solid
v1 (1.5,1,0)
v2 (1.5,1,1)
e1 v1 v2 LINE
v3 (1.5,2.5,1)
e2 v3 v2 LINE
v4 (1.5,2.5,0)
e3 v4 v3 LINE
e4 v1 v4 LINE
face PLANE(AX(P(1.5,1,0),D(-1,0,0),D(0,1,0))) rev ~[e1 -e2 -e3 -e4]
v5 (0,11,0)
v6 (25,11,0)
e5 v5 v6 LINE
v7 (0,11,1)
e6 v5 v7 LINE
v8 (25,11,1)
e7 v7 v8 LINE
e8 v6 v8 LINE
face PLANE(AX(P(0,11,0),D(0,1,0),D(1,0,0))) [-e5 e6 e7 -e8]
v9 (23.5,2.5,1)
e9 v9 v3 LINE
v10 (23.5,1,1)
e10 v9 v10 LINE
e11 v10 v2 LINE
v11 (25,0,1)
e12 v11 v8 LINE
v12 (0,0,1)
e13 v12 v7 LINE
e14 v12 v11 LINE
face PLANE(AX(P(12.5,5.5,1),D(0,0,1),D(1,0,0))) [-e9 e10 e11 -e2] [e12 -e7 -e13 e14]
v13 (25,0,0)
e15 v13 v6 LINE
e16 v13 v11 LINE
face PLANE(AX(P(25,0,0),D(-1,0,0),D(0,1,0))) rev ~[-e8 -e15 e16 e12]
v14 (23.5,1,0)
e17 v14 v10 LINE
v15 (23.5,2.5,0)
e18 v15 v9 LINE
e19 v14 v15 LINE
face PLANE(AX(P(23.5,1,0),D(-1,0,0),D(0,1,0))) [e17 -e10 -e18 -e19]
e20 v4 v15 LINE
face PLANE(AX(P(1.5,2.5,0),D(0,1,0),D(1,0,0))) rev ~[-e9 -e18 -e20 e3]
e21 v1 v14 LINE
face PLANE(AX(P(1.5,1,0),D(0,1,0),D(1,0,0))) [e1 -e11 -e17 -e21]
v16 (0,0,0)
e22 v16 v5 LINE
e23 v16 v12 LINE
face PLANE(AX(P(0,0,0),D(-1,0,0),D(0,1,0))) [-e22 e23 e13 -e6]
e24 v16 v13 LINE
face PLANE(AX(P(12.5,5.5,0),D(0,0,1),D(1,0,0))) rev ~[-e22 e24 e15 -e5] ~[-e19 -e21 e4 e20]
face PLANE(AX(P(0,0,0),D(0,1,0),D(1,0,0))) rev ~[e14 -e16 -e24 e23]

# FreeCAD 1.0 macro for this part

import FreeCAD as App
import Part
import Sketcher


def add_polygon(sketch, points):
    """Adds a closed chain of lines whose ends are joined by coincident constraints."""
    first, n = sketch.GeometryCount, len(points)
    for a, b in zip(points, points[1:] + points[:1]):
        sketch.addGeometry(Part.LineSegment(App.Vector(*a, 0), App.Vector(*b, 0)), False)
    for i in range(n):
        sketch.addConstraint(Sketcher.Constraint("Coincident", first + i, 2, first + (i + 1) % n, 1))

doc = App.newDocument("Part")
params = doc.addObject("Spreadsheet::Sheet", "Params")
for row, (alias, value) in enumerate([
    ("sketch1_width", "22 mm"),
    ("sketch1_height", "1.5 mm"),
    ("pad1_length", "2 mm"),
    ("sketch2_width", "25 mm"),
    ("sketch2_height", "11 mm"),
    ("pad2_length", "1 mm"),
], start=1):
    params.set(f"A{row}", alias)
    params.set(f"B{row}", "=" + value)
    params.setAlias(f"B{row}", alias)

body = doc.addObject("PartDesign::Body", "Body")

# Sketch on XY plane
sketch1 = body.newObject("Sketcher::SketchObject", "Sketch")
sketch1.AttachmentSupport = (doc.getObject("XY_Plane"), [""])
sketch1.MapMode = "FlatFace"
add_polygon(sketch1, [(1.5, 2.5), (1.5, 1), (23.5, 1), (23.5, 2.5)])  # lines 0-3
sketch1.addConstraint([
    Sketcher.Constraint("Vertical", 0),
    Sketcher.Constraint("Horizontal", 1),
    Sketcher.Constraint("Vertical", 2),
    Sketcher.Constraint("Horizontal", 3),
    Sketcher.Constraint("DistanceX", 1, 1, 1, 2, 22.0),
    Sketcher.Constraint("DistanceY", 0, 2, 0, 1, 1.5),
    Sketcher.Constraint("DistanceY", -1, 1, 0, 2, 1.0),
    Sketcher.Constraint("DistanceX", -1, 1, 0, 2, 1.5),
])
sketch1.setExpression("Constraints[8]", "Params.sketch1_width")
sketch1.setExpression("Constraints[9]", "Params.sketch1_height")
pad1 = body.newObject("PartDesign::Pad", "Pad")
pad1.Profile = sketch1
pad1.setExpression("Length", "Params.pad1_length")
body2 = doc.addObject("PartDesign::Body", "Body001")

# Sketch on XY plane
sketch2 = body2.newObject("Sketcher::SketchObject", "Sketch001")
sketch2.AttachmentSupport = (doc.getObject("XY_Plane001"), [""])
sketch2.MapMode = "FlatFace"
add_polygon(sketch2, [(0, 11), (0, 0), (25, 0), (25, 11)])  # lines 0-3
sketch2.addConstraint([
    Sketcher.Constraint("Vertical", 0),
    Sketcher.Constraint("Horizontal", 1),
    Sketcher.Constraint("Vertical", 2),
    Sketcher.Constraint("Horizontal", 3),
    Sketcher.Constraint("Coincident", 0, 2, -1, 1),
    Sketcher.Constraint("DistanceX", 1, 1, 1, 2, 25.0),
    Sketcher.Constraint("DistanceY", 0, 2, 0, 1, 11.0),
])
sketch2.setExpression("Constraints[9]", "Params.sketch2_width")
sketch2.setExpression("Constraints[10]", "Params.sketch2_height")
pad2 = body2.newObject("PartDesign::Pad", "Pad001")
pad2.Profile = sketch2
pad2.setExpression("Length", "Params.pad2_length")
doc.recompute()

boolean = body2.newObject("PartDesign::Boolean", "Boolean")
boolean.Type = "Cut"
boolean.addObjects([body])

doc.recompute()
